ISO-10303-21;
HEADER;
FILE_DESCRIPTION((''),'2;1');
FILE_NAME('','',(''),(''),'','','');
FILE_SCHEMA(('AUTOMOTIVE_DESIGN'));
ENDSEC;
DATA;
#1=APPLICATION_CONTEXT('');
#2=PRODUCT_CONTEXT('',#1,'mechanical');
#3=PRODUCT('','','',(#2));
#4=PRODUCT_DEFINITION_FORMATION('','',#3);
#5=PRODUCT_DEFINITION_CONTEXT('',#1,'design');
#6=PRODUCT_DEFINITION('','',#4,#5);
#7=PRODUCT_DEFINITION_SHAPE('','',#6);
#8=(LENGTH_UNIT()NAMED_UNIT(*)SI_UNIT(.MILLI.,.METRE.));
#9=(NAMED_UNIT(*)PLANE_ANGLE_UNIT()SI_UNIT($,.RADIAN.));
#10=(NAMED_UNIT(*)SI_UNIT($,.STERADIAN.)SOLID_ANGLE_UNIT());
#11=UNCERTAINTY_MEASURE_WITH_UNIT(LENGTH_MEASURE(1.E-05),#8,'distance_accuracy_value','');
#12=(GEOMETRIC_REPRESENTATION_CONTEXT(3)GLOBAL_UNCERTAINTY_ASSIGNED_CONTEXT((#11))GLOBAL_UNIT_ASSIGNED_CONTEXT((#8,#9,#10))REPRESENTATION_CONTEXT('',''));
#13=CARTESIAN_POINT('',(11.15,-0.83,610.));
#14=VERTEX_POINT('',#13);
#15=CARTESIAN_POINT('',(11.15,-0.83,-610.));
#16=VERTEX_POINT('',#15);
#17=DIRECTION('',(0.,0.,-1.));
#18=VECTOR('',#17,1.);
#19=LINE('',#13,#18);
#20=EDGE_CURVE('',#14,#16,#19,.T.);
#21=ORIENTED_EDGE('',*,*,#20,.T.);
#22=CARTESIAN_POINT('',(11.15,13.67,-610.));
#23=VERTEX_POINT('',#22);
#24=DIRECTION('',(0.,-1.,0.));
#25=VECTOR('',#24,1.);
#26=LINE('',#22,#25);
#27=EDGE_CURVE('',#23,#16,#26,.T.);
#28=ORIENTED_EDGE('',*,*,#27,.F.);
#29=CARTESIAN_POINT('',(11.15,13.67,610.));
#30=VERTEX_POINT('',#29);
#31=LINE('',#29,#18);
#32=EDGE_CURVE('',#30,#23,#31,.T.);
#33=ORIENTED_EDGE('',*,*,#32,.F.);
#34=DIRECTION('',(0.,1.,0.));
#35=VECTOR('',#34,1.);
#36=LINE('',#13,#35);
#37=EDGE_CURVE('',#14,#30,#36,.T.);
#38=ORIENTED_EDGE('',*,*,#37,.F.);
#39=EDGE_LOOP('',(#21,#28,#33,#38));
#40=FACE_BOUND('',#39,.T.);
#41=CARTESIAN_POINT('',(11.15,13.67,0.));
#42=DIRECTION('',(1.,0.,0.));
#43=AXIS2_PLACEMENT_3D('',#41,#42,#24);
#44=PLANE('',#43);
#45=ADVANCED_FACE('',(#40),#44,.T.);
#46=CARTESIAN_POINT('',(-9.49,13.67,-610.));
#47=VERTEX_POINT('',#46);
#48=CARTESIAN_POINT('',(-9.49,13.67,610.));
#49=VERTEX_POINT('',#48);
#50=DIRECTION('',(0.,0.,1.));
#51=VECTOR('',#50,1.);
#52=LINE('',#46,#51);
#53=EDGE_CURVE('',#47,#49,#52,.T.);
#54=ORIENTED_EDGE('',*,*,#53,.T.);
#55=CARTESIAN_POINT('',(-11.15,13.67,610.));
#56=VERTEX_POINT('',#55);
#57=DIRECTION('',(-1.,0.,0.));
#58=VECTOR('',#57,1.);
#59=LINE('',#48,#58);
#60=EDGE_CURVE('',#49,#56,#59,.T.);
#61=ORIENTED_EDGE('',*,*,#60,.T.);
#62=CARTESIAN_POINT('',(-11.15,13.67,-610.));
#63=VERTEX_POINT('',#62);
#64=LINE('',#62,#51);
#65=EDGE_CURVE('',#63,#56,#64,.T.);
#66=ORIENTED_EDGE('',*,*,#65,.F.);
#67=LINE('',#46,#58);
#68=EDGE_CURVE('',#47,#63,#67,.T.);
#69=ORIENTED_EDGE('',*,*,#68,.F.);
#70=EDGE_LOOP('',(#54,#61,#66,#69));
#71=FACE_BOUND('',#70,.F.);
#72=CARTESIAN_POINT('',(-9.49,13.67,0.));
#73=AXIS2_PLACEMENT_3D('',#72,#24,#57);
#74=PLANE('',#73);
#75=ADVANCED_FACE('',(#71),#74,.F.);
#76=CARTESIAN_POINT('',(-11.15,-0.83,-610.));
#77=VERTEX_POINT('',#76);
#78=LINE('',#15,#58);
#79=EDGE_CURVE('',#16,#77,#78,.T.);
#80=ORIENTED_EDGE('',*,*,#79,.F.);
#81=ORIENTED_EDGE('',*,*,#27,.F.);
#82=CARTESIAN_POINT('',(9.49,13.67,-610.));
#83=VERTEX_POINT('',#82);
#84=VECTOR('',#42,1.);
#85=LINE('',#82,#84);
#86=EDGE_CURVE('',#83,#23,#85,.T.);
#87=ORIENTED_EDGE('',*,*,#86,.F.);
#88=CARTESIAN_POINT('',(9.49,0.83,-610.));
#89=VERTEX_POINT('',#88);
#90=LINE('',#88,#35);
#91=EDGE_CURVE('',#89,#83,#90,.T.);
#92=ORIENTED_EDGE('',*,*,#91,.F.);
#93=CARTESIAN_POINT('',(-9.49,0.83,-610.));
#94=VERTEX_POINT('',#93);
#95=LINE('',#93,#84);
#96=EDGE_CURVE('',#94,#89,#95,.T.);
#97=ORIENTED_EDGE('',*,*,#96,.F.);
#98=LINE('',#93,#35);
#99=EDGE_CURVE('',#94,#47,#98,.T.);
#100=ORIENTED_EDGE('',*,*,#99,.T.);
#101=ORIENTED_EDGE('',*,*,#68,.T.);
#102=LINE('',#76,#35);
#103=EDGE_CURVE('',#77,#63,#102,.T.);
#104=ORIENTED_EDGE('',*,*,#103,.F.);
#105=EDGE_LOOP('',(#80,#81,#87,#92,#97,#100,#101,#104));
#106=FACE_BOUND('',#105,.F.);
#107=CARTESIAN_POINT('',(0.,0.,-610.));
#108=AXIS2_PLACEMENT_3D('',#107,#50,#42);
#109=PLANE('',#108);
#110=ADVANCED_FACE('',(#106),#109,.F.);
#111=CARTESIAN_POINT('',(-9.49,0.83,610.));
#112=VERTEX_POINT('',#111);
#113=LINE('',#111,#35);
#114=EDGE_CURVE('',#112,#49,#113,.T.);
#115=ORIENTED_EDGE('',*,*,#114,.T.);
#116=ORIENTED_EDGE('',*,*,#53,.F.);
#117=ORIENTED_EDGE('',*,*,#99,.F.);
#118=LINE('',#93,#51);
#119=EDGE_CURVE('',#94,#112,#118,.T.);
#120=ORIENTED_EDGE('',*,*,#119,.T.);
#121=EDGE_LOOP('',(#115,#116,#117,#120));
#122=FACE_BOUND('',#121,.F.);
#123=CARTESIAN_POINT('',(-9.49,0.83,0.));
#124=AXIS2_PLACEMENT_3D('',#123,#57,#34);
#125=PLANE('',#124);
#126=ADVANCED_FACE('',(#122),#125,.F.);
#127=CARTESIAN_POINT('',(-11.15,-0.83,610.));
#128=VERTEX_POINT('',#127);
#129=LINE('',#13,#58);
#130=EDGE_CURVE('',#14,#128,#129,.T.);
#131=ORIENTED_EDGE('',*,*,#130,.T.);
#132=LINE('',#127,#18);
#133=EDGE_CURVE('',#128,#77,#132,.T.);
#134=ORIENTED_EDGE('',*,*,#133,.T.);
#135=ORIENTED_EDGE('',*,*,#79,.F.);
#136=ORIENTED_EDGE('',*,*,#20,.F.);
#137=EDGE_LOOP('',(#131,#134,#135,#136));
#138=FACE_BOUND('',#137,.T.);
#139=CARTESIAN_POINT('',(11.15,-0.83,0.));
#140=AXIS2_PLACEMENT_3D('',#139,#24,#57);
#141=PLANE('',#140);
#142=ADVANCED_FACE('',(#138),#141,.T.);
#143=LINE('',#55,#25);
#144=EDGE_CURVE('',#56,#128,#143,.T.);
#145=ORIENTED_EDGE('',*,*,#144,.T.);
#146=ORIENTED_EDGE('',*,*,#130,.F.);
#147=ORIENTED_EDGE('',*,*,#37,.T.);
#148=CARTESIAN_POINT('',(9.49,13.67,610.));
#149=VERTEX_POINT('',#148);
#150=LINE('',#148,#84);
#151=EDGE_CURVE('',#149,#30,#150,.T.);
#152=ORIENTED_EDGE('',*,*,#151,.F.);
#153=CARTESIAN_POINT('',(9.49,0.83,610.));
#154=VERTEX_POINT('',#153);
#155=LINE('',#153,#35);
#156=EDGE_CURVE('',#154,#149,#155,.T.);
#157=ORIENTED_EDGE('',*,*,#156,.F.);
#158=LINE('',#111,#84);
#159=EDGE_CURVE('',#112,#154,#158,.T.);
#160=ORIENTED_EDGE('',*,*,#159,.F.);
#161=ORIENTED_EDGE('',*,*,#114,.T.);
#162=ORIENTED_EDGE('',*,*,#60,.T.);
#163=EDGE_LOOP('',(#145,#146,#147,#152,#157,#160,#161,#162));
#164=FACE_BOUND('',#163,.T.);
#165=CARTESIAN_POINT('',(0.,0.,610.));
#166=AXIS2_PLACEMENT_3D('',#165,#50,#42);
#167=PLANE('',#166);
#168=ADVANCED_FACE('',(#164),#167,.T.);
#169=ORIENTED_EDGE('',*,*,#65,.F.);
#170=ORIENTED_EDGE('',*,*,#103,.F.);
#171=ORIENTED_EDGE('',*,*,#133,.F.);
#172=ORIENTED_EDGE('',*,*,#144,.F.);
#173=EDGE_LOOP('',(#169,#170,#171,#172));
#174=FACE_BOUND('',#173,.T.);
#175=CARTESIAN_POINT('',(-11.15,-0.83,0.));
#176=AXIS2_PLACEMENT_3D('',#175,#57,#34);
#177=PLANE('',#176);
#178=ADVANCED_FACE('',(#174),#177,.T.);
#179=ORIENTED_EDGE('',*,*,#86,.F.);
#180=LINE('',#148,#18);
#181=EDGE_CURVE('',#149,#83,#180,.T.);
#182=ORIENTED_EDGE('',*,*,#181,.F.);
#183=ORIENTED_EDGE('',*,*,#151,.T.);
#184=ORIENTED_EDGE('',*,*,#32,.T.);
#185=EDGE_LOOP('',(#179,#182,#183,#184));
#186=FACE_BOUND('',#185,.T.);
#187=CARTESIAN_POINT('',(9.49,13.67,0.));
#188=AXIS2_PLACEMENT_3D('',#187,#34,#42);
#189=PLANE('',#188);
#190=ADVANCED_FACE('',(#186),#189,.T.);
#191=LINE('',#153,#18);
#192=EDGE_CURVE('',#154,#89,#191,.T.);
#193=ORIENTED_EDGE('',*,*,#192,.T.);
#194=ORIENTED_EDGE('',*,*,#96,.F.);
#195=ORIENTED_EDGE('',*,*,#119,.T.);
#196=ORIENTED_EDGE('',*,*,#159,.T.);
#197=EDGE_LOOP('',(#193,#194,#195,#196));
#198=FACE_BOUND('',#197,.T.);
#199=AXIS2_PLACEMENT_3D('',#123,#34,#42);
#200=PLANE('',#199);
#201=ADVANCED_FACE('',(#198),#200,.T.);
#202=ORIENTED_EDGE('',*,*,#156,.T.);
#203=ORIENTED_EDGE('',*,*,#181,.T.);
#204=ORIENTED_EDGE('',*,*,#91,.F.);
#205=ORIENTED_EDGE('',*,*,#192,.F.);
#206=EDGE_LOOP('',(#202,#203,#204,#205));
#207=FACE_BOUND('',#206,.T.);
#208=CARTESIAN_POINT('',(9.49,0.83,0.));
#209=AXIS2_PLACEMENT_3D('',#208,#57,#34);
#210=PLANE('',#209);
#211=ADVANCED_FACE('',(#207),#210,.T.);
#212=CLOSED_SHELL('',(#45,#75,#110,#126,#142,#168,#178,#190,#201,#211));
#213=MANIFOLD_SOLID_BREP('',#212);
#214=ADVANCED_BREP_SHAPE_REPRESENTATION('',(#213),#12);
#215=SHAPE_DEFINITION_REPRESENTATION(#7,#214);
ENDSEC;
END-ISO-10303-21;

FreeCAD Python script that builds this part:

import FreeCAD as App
import Part
import Sketcher


def add_polygon(sketch, points):
    """Adds a closed chain of lines whose ends are joined by coincident constraints."""
    first, n = sketch.GeometryCount, len(points)
    for a, b in zip(points, points[1:] + points[:1]):
        sketch.addGeometry(Part.LineSegment(App.Vector(*a, 0), App.Vector(*b, 0)), False)
    for i in range(n):
        sketch.addConstraint(Sketcher.Constraint("Coincident", first + i, 2, first + (i + 1) % n, 1))

doc = App.newDocument("Part")
body = doc.addObject("PartDesign::Body", "Body")

sketch1 = body.newObject("Sketcher::SketchObject", "Sketch")
sketch1.AttachmentSupport = (doc.getObject("XY_Plane"), [""])
sketch1.MapMode = "FlatFace"
add_polygon(sketch1, [(9.5, 0.8), (-9.5, 0.8), (-9.5, 13.7), (-11.2, 13.7), (-11.2, -0.8), (11.2, -0.8), (11.2, 13.7), (9.5, 13.7)])
sketch1.addConstraint([
    Sketcher.Constraint("Horizontal", 0),
    Sketcher.Constraint("Vertical", 1),
    Sketcher.Constraint("Horizontal", 2),
    Sketcher.Constraint("Vertical", 3),
    Sketcher.Constraint("Horizontal", 4),
    Sketcher.Constraint("Vertical", 5),
    Sketcher.Constraint("Horizontal", 6),
    Sketcher.Constraint("Vertical", 7),
    Sketcher.Constraint("Symmetric", 2, 2, 5, 2, -2),
    Sketcher.Constraint("Equal", 2, 6),
    Sketcher.Constraint("DistanceX", 4, 1, 4, 2, 22.3),
    Sketcher.Constraint("DistanceY", 3, 2, 3, 1, 14.5),
    Sketcher.Constraint("DistanceX", 2, 2, 2, 1, 1.66),
    Sketcher.Constraint("DistanceY", -1, 1, 0, 2, 0.83),
    Sketcher.Constraint("DistanceY", 3, 2, -1, 1, 0.83),
])
pad1 = body.newObject("PartDesign::Pad", "Pad")
pad1.Profile = sketch1
pad1.Length = 1220
pad1.Midplane = True

doc.recompute()
